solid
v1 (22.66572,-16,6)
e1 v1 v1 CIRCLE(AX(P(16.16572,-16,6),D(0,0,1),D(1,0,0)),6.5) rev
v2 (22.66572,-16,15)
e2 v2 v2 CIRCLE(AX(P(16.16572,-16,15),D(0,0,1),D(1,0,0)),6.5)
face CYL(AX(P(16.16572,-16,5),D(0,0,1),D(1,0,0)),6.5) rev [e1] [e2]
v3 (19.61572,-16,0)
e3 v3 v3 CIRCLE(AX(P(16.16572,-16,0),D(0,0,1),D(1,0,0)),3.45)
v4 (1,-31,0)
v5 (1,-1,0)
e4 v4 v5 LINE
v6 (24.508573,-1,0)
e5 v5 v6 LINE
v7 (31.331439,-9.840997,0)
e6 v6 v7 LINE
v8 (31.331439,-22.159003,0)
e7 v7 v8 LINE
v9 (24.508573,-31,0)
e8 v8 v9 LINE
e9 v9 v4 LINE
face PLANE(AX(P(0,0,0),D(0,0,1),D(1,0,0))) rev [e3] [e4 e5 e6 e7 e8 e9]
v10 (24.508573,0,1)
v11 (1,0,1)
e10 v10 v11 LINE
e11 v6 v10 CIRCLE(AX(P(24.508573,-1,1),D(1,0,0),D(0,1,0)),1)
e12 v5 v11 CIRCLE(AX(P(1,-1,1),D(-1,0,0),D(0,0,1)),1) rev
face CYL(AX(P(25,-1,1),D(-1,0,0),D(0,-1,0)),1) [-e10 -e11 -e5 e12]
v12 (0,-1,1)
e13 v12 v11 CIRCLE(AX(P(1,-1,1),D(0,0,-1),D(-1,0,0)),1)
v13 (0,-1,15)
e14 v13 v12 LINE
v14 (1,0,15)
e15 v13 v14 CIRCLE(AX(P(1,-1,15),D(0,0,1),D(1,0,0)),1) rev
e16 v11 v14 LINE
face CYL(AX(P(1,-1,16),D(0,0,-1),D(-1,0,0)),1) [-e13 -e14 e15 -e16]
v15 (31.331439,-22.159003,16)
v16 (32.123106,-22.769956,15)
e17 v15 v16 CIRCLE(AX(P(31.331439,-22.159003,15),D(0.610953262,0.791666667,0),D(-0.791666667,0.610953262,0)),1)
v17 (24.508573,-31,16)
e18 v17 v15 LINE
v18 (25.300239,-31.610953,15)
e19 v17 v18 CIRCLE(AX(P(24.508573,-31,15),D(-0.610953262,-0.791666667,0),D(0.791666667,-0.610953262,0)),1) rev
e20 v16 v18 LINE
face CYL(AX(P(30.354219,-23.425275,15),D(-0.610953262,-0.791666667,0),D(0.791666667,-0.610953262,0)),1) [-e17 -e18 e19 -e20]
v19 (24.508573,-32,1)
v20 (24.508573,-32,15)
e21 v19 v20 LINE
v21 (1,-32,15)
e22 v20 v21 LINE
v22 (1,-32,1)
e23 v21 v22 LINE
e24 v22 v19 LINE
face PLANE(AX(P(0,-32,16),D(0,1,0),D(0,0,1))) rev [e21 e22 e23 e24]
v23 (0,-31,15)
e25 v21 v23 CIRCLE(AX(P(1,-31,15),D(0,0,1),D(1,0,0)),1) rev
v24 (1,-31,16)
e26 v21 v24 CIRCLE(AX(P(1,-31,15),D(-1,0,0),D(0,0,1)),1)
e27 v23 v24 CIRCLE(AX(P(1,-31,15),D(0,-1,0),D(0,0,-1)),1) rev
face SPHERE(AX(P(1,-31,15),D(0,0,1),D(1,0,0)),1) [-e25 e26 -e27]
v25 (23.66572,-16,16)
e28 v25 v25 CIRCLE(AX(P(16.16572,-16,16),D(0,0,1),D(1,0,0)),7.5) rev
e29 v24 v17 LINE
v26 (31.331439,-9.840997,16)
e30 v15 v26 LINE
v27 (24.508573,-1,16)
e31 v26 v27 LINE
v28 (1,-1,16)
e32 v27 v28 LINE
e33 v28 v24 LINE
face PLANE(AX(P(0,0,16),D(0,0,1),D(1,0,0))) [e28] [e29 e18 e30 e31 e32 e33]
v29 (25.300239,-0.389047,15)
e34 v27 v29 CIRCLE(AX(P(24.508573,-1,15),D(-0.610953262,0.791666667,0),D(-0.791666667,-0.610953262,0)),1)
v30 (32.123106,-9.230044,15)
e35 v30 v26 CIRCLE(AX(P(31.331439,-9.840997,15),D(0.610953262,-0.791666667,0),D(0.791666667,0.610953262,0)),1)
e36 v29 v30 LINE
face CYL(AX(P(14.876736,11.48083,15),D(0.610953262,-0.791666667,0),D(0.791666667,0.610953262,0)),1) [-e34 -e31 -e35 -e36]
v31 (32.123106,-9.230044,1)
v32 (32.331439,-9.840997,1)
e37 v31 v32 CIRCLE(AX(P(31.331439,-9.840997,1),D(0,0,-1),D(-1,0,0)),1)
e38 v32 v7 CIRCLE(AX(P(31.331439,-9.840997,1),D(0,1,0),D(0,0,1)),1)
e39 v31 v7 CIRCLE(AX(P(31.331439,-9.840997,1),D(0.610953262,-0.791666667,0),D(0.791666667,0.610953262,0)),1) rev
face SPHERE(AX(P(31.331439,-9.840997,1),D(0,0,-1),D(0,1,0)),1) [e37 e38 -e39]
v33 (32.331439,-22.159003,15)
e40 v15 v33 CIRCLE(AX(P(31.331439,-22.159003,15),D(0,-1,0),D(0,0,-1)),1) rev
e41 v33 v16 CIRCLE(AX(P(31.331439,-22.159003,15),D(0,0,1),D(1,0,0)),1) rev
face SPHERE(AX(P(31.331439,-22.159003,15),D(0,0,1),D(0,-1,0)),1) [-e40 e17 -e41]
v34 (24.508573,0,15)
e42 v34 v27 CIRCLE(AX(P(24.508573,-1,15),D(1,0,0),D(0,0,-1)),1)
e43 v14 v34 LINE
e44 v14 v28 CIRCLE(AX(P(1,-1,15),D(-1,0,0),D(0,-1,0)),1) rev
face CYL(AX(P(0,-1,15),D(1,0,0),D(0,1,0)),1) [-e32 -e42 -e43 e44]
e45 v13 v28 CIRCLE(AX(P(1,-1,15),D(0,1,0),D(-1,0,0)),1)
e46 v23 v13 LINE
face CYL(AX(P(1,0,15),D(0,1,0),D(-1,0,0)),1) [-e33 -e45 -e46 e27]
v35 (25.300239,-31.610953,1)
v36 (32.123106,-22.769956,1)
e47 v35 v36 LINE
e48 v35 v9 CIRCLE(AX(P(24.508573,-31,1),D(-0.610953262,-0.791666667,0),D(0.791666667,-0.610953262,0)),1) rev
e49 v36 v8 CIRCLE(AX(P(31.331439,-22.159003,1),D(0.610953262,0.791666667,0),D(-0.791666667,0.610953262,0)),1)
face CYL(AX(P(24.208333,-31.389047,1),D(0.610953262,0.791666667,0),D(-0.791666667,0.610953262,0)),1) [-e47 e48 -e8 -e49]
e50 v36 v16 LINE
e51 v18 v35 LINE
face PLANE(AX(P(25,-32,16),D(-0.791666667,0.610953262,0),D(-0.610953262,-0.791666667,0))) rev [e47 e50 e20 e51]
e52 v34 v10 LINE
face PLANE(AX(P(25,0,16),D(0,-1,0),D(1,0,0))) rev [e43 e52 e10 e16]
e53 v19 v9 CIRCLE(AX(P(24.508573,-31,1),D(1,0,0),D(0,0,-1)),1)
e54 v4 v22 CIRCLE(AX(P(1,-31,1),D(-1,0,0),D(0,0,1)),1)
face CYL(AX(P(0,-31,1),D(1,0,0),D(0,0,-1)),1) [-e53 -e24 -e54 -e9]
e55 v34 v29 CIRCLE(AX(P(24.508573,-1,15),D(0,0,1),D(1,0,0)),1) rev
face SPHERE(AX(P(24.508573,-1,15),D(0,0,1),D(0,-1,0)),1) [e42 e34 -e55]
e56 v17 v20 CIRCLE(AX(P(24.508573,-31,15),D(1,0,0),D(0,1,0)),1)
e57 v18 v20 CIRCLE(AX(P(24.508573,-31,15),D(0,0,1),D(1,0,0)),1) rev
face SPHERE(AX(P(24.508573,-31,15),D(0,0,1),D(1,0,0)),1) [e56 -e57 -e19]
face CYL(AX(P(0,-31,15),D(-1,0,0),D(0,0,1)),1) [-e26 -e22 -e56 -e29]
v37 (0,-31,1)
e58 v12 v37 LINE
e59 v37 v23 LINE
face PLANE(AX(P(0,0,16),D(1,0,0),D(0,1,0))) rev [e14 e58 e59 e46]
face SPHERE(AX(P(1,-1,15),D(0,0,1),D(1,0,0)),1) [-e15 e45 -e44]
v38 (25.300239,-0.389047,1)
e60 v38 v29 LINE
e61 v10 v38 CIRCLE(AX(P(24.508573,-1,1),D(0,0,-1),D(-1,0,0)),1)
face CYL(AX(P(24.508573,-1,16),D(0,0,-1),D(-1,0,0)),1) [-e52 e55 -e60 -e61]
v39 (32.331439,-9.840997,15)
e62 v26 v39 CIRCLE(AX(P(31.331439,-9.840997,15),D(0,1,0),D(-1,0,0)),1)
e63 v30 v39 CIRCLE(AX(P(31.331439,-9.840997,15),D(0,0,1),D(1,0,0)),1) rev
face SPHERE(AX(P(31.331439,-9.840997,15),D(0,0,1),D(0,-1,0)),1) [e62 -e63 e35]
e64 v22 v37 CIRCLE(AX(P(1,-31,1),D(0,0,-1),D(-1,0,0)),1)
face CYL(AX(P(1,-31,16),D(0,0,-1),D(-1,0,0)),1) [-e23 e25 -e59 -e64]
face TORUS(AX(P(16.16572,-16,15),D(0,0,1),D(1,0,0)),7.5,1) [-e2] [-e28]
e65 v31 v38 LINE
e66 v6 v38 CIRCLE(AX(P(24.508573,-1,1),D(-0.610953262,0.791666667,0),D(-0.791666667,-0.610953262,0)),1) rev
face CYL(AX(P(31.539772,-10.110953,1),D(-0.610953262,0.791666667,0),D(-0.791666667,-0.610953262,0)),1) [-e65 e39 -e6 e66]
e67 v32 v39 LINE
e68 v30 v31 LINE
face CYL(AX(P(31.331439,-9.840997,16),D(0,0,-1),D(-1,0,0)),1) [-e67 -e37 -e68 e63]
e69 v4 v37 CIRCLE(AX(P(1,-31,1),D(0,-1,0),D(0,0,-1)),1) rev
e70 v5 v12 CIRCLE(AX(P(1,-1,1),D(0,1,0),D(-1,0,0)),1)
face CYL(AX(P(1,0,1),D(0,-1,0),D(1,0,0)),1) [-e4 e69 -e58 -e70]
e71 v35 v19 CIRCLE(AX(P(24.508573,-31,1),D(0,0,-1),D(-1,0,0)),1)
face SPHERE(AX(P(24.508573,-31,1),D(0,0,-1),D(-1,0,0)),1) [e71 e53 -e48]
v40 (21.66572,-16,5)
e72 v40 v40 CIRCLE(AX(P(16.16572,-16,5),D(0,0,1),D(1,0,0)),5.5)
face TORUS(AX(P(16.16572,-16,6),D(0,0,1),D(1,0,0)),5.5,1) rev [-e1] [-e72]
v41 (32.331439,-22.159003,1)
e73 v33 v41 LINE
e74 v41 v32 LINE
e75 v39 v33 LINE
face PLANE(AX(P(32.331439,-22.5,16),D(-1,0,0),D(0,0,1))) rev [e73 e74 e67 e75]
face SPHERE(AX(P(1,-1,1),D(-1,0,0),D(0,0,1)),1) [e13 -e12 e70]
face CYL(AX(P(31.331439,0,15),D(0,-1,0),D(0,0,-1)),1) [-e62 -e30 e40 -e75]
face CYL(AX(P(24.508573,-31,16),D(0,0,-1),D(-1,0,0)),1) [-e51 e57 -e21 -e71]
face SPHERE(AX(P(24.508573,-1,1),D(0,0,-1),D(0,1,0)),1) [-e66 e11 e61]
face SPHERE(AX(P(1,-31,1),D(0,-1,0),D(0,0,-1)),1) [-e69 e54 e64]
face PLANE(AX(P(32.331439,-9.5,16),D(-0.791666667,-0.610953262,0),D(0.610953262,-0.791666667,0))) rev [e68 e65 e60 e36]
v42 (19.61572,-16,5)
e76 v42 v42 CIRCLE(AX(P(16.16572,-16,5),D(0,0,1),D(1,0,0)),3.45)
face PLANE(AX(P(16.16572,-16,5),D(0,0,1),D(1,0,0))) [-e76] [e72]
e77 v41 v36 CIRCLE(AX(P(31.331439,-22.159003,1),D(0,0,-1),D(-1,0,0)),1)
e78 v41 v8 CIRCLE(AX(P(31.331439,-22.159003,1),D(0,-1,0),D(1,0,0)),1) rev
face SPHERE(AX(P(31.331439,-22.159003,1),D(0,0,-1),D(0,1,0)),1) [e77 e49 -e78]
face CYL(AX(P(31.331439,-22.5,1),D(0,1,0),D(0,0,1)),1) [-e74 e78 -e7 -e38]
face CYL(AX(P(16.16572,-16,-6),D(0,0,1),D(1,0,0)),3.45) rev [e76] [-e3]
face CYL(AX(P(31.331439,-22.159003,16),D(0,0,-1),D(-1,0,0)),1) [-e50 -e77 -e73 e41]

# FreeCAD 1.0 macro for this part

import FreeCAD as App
import Part
import Sketcher
from FreeCAD import Vector


def edges_at(feature, points):
    """Names of the edges that pass closest to the given points."""
    edges = feature.Shape.Edges
    near = lambda p: min(range(len(edges)), key=lambda i: edges[i].distToShape(Part.Vertex(*p))[0])
    return sorted({f"Edge{near(p) + 1}" for p in points})

doc = App.newDocument("Part")
body = doc.addObject("PartDesign::Body", "Body")

# Sketch on XY plane
sketch1 = body.newObject("Sketcher::SketchObject", "Sketch")
sketch1.AttachmentSupport = (doc.getObject("XY_Plane"), [""])
sketch1.MapMode = "FlatFace"
sketch1.addGeometry([
    Part.LineSegment(Vector(0, 0, 0), Vector(0, -32, 0)),  # 0
    Part.LineSegment(Vector(0, -32, 0), Vector(25, -32, 0)),  # 1
    Part.LineSegment(Vector(25, -32, 0), Vector(32, -22, 0)),  # 2
    Part.LineSegment(Vector(32, -22, 0), Vector(32, -10, 0)),  # 3
    Part.LineSegment(Vector(32, -10, 0), Vector(25, 0, 0)),  # 4
    Part.LineSegment(Vector(25, 0, 0), Vector(0, 0, 0)),  # 5
], False)
sketch1.addConstraint([
    Sketcher.Constraint("Coincident", 0, 2, 1, 1),
    Sketcher.Constraint("Coincident", 1, 2, 2, 1),
    Sketcher.Constraint("Coincident", 2, 2, 3, 1),
    Sketcher.Constraint("Coincident", 3, 2, 4, 1),
    Sketcher.Constraint("Coincident", 4, 2, 5, 1),
    Sketcher.Constraint("Coincident", 5, 2, 0, 1),
    Sketcher.Constraint("Vertical", 0),
    Sketcher.Constraint("Horizontal", 1),
    Sketcher.Constraint("Vertical", 3),
    Sketcher.Constraint("Horizontal", 5),
    Sketcher.Constraint("Coincident", 5, 2, -1, 1),
    Sketcher.Constraint("Vertical", 1, 2, 4, 2),
    Sketcher.Constraint("Equal", 2, 4),
    Sketcher.Constraint("DistanceX", 1, 1, 1, 2, 25.0),
    Sketcher.Constraint("DistanceY", 0, 2, 0, 1, 32.0),
    Sketcher.Constraint("DistanceY", 3, 1, 3, 2, 13.0),
    Sketcher.Constraint("Distance", 2, 12.0),
])
pad1 = body.newObject("PartDesign::Pad", "Pad")
pad1.Profile = sketch1
pad1.Length = 16

# Sketch on XY plane
sketch2 = body.newObject("Sketcher::SketchObject", "Sketch001")
sketch2.AttachmentSupport = (doc.getObject("XY_Plane"), [""])
sketch2.MapMode = "FlatFace"
sketch2.AttachmentOffset = App.Placement(Vector(0, 0, 16), App.Rotation())
sketch2.addGeometry(Part.Circle(Vector(16, -16, 0), Vector(0, 0, 1), 6), False)
sketch2.addConstraint([
    Sketcher.Constraint("Diameter", 0, 13.0),
    Sketcher.Constraint("DistanceY", 0, 3, -1, 1, 16.0),
    Sketcher.Constraint("DistanceX", -1, 1, 0, 3, 16.16572),
])
pocket1 = body.newObject("PartDesign::Pocket", "Pocket")
pocket1.Profile = sketch2
pocket1.Length = 11

# Sketch on XY plane
sketch3 = body.newObject("Sketcher::SketchObject", "Sketch002")
sketch3.AttachmentSupport = (doc.getObject("XY_Plane"), [""])
sketch3.MapMode = "FlatFace"
sketch3.AttachmentOffset = App.Placement(Vector(0, 0, 5), App.Rotation())
sketch3.addGeometry(Part.Circle(Vector(16.2, -16, 0), Vector(0, 0, 1), 3.5), False)
sketch3.addConstraint([
    Sketcher.Constraint("Diameter", 0, 6.9),
    Sketcher.Constraint("DistanceY", 0, 3, -1, 1, 16.0),
    Sketcher.Constraint("DistanceX", -1, 1, 0, 3, 16.16572),
])
pocket2 = body.newObject("PartDesign::Pocket", "Pocket001")
pocket2.Profile = sketch3
pocket2.Length = 11
doc.recompute()

fillet = body.newObject("PartDesign::Fillet", "Fillet")
fillet.Base = (pocket2, edges_at(pocket2, [
    (25, 0, 8),
    (32.331, -9.5, 8),
    (32.331, -22.5, 8),
    (25, -32, 8),
    (0, -32, 8),
    (0, 0, 8),
    (12.5, -32, 16),
    (28.666, -27.25, 16),
    (32.331, -16, 16),
    (9.666, -16, 5),
    (9.666, -16, 16),
    (28.666, -4.75, 16),
    (12.5, 0, 16),
    (28.666, -4.75, 0),
    (32.331, -16, 0),
    (28.666, -27.25, 0),
    (12.5, -32, 0),
    (0, -16, 0),
    (12.5, 0, 0),
    (0, -16, 16),
]))
fillet.Radius = 1

doc.recompute()
